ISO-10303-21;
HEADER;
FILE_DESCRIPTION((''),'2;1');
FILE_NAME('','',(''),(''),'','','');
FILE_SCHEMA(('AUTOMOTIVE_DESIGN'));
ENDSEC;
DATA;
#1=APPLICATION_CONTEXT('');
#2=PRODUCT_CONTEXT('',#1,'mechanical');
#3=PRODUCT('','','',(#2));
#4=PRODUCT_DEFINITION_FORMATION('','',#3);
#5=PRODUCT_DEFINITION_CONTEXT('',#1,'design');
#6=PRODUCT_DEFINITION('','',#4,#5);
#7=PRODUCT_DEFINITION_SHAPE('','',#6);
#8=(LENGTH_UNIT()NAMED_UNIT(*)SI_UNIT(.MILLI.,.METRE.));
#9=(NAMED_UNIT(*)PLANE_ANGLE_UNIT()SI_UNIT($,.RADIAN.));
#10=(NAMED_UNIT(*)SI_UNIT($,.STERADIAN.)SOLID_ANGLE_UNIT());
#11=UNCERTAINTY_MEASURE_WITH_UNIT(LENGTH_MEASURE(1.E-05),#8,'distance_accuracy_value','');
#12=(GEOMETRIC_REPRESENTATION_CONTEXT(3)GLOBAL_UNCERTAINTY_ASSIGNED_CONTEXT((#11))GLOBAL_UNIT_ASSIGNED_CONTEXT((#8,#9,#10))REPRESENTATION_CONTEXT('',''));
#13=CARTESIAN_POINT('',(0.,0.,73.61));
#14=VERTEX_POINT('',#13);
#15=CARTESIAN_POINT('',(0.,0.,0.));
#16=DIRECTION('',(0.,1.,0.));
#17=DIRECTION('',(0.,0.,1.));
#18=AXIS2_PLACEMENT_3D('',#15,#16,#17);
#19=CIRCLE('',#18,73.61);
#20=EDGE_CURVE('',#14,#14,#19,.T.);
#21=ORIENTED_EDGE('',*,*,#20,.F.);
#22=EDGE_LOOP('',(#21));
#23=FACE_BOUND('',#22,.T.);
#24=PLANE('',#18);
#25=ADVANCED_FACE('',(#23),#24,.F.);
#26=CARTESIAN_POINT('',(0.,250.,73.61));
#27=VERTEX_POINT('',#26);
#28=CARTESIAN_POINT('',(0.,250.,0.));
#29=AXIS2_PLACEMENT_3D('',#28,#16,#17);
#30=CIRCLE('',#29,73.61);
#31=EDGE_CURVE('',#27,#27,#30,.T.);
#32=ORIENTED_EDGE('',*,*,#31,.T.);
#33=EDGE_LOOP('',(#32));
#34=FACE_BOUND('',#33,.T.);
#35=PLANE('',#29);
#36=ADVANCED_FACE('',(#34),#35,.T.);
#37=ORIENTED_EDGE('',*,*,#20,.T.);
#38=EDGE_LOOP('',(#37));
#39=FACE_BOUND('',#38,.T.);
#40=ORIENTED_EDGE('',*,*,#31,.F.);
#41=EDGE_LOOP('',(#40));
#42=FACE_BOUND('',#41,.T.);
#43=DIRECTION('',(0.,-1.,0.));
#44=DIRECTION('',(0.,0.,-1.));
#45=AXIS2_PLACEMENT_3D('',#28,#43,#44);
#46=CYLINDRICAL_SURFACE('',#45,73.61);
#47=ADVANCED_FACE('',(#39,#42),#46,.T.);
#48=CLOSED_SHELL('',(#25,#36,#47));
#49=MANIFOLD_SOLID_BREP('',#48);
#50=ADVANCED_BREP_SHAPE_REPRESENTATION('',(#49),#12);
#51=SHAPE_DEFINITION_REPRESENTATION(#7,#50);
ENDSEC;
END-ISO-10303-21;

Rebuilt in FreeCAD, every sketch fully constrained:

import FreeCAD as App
import Part
import Sketcher

V = App.Vector
Q = App.Units.Quantity

doc = App.newDocument("Part")
body = doc.addObject("PartDesign::Body", "Body")

sketch1 = body.newObject("Sketcher::SketchObject", "Sketch")
sketch1.AttachmentSupport = (doc.getObject("XZ_Plane"), [""])
sketch1.MapMode = "FlatFace"
sketch1.addGeometry(Part.Circle(V(0, 0, 0), V(0, 0, 1), 73.61), False)
sketch1.addConstraint(Sketcher.Constraint("Coincident", 0, 3, -1, 1))
sketch1.addConstraint(Sketcher.Constraint("Diameter", 0, Q("147.22 mm")))
pad1 = body.newObject("PartDesign::Pad", "Pad")
pad1.Profile = sketch1
pad1.Length = 250
pad1.Reversed = True

doc.recompute()
